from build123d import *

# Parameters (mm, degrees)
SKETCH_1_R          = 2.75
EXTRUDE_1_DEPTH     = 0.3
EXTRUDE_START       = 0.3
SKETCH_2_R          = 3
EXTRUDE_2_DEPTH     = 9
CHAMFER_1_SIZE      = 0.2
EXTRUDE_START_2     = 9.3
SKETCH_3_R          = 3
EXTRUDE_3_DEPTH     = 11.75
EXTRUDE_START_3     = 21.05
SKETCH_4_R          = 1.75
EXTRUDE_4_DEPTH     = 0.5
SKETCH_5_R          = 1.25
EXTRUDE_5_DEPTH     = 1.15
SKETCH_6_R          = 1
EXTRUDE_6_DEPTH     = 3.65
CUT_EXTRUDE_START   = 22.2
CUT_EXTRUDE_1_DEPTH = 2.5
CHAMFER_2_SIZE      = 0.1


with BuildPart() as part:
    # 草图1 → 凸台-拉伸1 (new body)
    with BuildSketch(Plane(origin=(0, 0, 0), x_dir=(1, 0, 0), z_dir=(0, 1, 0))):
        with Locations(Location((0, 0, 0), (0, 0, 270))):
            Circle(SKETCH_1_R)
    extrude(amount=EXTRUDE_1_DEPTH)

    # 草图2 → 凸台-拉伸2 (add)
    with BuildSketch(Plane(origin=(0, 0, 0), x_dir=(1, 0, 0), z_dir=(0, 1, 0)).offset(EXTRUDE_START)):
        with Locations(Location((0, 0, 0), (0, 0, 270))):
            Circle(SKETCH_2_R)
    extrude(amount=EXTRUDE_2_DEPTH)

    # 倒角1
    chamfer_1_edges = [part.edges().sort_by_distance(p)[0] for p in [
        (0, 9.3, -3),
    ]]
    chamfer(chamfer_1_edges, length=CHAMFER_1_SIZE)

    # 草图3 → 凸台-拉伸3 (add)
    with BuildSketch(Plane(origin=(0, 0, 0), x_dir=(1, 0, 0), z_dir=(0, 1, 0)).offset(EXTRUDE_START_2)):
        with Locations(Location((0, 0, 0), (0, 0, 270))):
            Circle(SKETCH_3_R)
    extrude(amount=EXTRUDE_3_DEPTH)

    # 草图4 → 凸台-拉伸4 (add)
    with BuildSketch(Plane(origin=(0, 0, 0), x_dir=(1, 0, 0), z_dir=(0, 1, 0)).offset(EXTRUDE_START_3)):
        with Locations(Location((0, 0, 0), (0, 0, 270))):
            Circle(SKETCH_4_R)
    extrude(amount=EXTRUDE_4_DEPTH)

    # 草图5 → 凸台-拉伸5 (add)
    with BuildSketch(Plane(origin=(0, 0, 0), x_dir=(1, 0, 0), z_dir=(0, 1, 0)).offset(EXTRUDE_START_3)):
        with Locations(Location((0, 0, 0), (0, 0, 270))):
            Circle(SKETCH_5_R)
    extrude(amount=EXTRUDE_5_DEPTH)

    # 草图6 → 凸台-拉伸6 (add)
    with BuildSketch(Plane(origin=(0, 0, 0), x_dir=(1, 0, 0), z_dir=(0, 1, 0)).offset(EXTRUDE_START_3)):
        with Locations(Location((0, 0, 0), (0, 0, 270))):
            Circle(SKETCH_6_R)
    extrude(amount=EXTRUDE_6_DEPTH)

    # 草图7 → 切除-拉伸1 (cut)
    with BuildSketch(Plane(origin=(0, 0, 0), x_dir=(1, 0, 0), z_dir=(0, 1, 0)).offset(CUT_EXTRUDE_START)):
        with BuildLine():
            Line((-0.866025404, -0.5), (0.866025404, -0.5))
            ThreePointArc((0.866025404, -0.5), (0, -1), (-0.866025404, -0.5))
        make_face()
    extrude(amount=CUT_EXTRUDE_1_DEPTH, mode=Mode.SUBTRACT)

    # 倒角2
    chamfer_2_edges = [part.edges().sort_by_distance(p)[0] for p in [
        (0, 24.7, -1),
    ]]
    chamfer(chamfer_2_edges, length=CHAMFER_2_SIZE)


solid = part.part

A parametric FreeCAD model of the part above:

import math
import FreeCAD as App
import Part
import Sketcher
Q = App.Units.Quantity


def edges_at(feature, points):
    """Names of the edges that pass closest to the given points."""
    edges = feature.Shape.Edges
    near = lambda p: min(range(len(edges)), key=lambda i: edges[i].distToShape(Part.Vertex(*p))[0])
    return sorted({f"Edge{near(p) + 1}" for p in points})

doc = App.newDocument("Part")
params = doc.addObject("Spreadsheet::Sheet", "Params")
for row, (alias, value) in enumerate([
    ("sketch1_diameter", "5.5 mm"),
    ("pad1_length", "0.3 mm"),
    ("sketch2_diameter", "6 mm"),
    ("pad2_length", "9 mm"),
    ("chamfer_size", "0.2 mm"),
    ("sketch3_diameter", "6 mm"),
    ("pad3_length", "11.75 mm"),
    ("sketch4_diameter", "3.5 mm"),
    ("pad4_length", "0.5 mm"),
    ("sketch5_diameter", "2.5 mm"),
    ("pad5_length", "1.15 mm"),
    ("sketch6_diameter", "2 mm"),
    ("pad6_length", "3.65 mm"),
    ("sketch7_radius", "1 mm"),
    ("pocket1_length", "2.5 mm"),
    ("chamfer2_size", "0.1 mm"),
], start=1):
    params.set(f"A{row}", alias)
    params.set(f"B{row}", "=" + value)
    params.setAlias(f"B{row}", alias)

body = doc.addObject("PartDesign::Body", "Body")

# Sketch on XZ plane
sketch1 = doc.addObject("Sketcher::SketchObject", "Sketch")
body.addObject(sketch1)
sketch1.AttachmentSupport = (doc.XZ_Plane, [""])
sketch1.MapMode = "FlatFace"
sketch1.addGeometry(Part.Circle(App.Vector(0, 0, 0), App.Vector(0, 0, 1), 2.8), False)
sketch1.addConstraint(Sketcher.Constraint("Coincident", 0, 3, -1, 1))
sketch1.addConstraint(Sketcher.Constraint("Diameter", 0, Q("5.5 mm")))
sketch1.setExpression("Constraints[1]", "Params.sketch1_diameter")
pad1 = doc.addObject("PartDesign::Pad", "Pad")
body.addObject(pad1)
pad1.Profile = sketch1
pad1.setExpression("Length", "Params.pad1_length")
pad1.Reversed = True

# Sketch on XZ plane
sketch2 = doc.addObject("Sketcher::SketchObject", "Sketch001")
body.addObject(sketch2)
sketch2.AttachmentSupport = (doc.XZ_Plane, [""])
sketch2.MapMode = "FlatFace"
sketch2.AttachmentOffset = App.Placement(App.Vector(0, 0, -0.3), App.Rotation())
sketch2.addGeometry(Part.Circle(App.Vector(0, 0, 0), App.Vector(0, 0, 1), 3), False)
sketch2.addConstraint(Sketcher.Constraint("Coincident", 0, 3, -1, 1))
sketch2.addConstraint(Sketcher.Constraint("Diameter", 0, Q("6 mm")))
sketch2.setExpression("Constraints[1]", "Params.sketch2_diameter")
pad2 = doc.addObject("PartDesign::Pad", "Pad001")
body.addObject(pad2)
pad2.Profile = sketch2
pad2.setExpression("Length", "Params.pad2_length")
pad2.Reversed = True
doc.recompute()

chamfer = doc.addObject("PartDesign::Chamfer", "Chamfer")
body.addObject(chamfer)
chamfer.Base = (pad2, edges_at(pad2, [(0, 9.3, -3)]))
chamfer.setExpression("Size", "Params.chamfer_size")

# Sketch on XZ plane
sketch3 = doc.addObject("Sketcher::SketchObject", "Sketch002")
body.addObject(sketch3)
sketch3.AttachmentSupport = (doc.XZ_Plane, [""])
sketch3.MapMode = "FlatFace"
sketch3.AttachmentOffset = App.Placement(App.Vector(0, 0, -9.3), App.Rotation())
sketch3.addGeometry(Part.Circle(App.Vector(0, 0, 0), App.Vector(0, 0, 1), 3), False)
sketch3.addConstraint(Sketcher.Constraint("Coincident", 0, 3, -1, 1))
sketch3.addConstraint(Sketcher.Constraint("Diameter", 0, Q("6 mm")))
sketch3.setExpression("Constraints[1]", "Params.sketch3_diameter")
pad3 = doc.addObject("PartDesign::Pad", "Pad002")
body.addObject(pad3)
pad3.Profile = sketch3
pad3.setExpression("Length", "Params.pad3_length")
pad3.Reversed = True

# Sketch on XZ plane
sketch4 = doc.addObject("Sketcher::SketchObject", "Sketch003")
body.addObject(sketch4)
sketch4.AttachmentSupport = (doc.XZ_Plane, [""])
sketch4.MapMode = "FlatFace"
sketch4.AttachmentOffset = App.Placement(App.Vector(0, 0, -21.05), App.Rotation())
sketch4.addGeometry(Part.Circle(App.Vector(0, 0, 0), App.Vector(0, 0, 1), 1.8), False)
sketch4.addConstraint(Sketcher.Constraint("Coincident", 0, 3, -1, 1))
sketch4.addConstraint(Sketcher.Constraint("Diameter", 0, Q("3.5 mm")))
sketch4.setExpression("Constraints[1]", "Params.sketch4_diameter")
pad4 = doc.addObject("PartDesign::Pad", "Pad003")
body.addObject(pad4)
pad4.Profile = sketch4
pad4.setExpression("Length", "Params.pad4_length")
pad4.Reversed = True

# Sketch on XZ plane
sketch5 = doc.addObject("Sketcher::SketchObject", "Sketch004")
body.addObject(sketch5)
sketch5.AttachmentSupport = (doc.XZ_Plane, [""])
sketch5.MapMode = "FlatFace"
sketch5.AttachmentOffset = App.Placement(App.Vector(0, 0, -21.05), App.Rotation())
sketch5.addGeometry(Part.Circle(App.Vector(0, 0, 0), App.Vector(0, 0, 1), 1.2), False)
sketch5.addConstraint(Sketcher.Constraint("Coincident", 0, 3, -1, 1))
sketch5.addConstraint(Sketcher.Constraint("Diameter", 0, Q("2.5 mm")))
sketch5.setExpression("Constraints[1]", "Params.sketch5_diameter")
pad5 = doc.addObject("PartDesign::Pad", "Pad004")
body.addObject(pad5)
pad5.Profile = sketch5
pad5.setExpression("Length", "Params.pad5_length")
pad5.Reversed = True

# Sketch on XZ plane
sketch6 = doc.addObject("Sketcher::SketchObject", "Sketch005")
body.addObject(sketch6)
sketch6.AttachmentSupport = (doc.XZ_Plane, [""])
sketch6.MapMode = "FlatFace"
sketch6.AttachmentOffset = App.Placement(App.Vector(0, 0, -21.05), App.Rotation())
sketch6.addGeometry(Part.Circle(App.Vector(0, 0, 0), App.Vector(0, 0, 1), 1), False)
sketch6.addConstraint(Sketcher.Constraint("Coincident", 0, 3, -1, 1))
sketch6.addConstraint(Sketcher.Constraint("Diameter", 0, Q("2 mm")))
sketch6.setExpression("Constraints[1]", "Params.sketch6_diameter")
pad6 = doc.addObject("PartDesign::Pad", "Pad005")
body.addObject(pad6)
pad6.Profile = sketch6
pad6.setExpression("Length", "Params.pad6_length")
pad6.Reversed = True

# Sketch on XZ plane
sketch7 = doc.addObject("Sketcher::SketchObject", "Sketch006")
body.addObject(sketch7)
sketch7.AttachmentSupport = (doc.XZ_Plane, [""])
sketch7.MapMode = "FlatFace"
sketch7.AttachmentOffset = App.Placement(App.Vector(0, 0, -22.2), App.Rotation())
sketch7.addGeometry(Part.LineSegment(App.Vector(0.9, 0.5, 0), App.Vector(-0.9, 0.5, 0)), False)
sketch7.addGeometry(Part.ArcOfCircle(Part.Circle(App.Vector(0, 0, 0), App.Vector(0, 0, 1), 1), math.radians(30), math.radians(150)), False)
sketch7.addConstraint(Sketcher.Constraint("Coincident", 0, 1, 1, 1))
sketch7.addConstraint(Sketcher.Constraint("Coincident", 1, 2, 0, 2))
sketch7.addConstraint(Sketcher.Constraint("Horizontal", 0))
sketch7.addConstraint(Sketcher.Constraint("Coincident", 1, 3, -1, 1))
sketch7.addConstraint(Sketcher.Constraint("Radius", 1, Q("1 mm")))
sketch7.addConstraint(Sketcher.Constraint("DistanceY", -1, 1, 0, 1, Q("0.5 mm")))
sketch7.setExpression("Constraints[4]", "Params.sketch7_radius")
pocket1 = doc.addObject("PartDesign::Pocket", "Pocket")
body.addObject(pocket1)
pocket1.Profile = sketch7
pocket1.setExpression("Length", "Params.pocket1_length")
doc.recompute()

chamfer2 = doc.addObject("PartDesign::Chamfer", "Chamfer001")
body.addObject(chamfer2)
chamfer2.Base = (pocket1, edges_at(pocket1, [(0, 24.7, -1)]))
chamfer2.setExpression("Size", "Params.chamfer2_size")

doc.recompute()
